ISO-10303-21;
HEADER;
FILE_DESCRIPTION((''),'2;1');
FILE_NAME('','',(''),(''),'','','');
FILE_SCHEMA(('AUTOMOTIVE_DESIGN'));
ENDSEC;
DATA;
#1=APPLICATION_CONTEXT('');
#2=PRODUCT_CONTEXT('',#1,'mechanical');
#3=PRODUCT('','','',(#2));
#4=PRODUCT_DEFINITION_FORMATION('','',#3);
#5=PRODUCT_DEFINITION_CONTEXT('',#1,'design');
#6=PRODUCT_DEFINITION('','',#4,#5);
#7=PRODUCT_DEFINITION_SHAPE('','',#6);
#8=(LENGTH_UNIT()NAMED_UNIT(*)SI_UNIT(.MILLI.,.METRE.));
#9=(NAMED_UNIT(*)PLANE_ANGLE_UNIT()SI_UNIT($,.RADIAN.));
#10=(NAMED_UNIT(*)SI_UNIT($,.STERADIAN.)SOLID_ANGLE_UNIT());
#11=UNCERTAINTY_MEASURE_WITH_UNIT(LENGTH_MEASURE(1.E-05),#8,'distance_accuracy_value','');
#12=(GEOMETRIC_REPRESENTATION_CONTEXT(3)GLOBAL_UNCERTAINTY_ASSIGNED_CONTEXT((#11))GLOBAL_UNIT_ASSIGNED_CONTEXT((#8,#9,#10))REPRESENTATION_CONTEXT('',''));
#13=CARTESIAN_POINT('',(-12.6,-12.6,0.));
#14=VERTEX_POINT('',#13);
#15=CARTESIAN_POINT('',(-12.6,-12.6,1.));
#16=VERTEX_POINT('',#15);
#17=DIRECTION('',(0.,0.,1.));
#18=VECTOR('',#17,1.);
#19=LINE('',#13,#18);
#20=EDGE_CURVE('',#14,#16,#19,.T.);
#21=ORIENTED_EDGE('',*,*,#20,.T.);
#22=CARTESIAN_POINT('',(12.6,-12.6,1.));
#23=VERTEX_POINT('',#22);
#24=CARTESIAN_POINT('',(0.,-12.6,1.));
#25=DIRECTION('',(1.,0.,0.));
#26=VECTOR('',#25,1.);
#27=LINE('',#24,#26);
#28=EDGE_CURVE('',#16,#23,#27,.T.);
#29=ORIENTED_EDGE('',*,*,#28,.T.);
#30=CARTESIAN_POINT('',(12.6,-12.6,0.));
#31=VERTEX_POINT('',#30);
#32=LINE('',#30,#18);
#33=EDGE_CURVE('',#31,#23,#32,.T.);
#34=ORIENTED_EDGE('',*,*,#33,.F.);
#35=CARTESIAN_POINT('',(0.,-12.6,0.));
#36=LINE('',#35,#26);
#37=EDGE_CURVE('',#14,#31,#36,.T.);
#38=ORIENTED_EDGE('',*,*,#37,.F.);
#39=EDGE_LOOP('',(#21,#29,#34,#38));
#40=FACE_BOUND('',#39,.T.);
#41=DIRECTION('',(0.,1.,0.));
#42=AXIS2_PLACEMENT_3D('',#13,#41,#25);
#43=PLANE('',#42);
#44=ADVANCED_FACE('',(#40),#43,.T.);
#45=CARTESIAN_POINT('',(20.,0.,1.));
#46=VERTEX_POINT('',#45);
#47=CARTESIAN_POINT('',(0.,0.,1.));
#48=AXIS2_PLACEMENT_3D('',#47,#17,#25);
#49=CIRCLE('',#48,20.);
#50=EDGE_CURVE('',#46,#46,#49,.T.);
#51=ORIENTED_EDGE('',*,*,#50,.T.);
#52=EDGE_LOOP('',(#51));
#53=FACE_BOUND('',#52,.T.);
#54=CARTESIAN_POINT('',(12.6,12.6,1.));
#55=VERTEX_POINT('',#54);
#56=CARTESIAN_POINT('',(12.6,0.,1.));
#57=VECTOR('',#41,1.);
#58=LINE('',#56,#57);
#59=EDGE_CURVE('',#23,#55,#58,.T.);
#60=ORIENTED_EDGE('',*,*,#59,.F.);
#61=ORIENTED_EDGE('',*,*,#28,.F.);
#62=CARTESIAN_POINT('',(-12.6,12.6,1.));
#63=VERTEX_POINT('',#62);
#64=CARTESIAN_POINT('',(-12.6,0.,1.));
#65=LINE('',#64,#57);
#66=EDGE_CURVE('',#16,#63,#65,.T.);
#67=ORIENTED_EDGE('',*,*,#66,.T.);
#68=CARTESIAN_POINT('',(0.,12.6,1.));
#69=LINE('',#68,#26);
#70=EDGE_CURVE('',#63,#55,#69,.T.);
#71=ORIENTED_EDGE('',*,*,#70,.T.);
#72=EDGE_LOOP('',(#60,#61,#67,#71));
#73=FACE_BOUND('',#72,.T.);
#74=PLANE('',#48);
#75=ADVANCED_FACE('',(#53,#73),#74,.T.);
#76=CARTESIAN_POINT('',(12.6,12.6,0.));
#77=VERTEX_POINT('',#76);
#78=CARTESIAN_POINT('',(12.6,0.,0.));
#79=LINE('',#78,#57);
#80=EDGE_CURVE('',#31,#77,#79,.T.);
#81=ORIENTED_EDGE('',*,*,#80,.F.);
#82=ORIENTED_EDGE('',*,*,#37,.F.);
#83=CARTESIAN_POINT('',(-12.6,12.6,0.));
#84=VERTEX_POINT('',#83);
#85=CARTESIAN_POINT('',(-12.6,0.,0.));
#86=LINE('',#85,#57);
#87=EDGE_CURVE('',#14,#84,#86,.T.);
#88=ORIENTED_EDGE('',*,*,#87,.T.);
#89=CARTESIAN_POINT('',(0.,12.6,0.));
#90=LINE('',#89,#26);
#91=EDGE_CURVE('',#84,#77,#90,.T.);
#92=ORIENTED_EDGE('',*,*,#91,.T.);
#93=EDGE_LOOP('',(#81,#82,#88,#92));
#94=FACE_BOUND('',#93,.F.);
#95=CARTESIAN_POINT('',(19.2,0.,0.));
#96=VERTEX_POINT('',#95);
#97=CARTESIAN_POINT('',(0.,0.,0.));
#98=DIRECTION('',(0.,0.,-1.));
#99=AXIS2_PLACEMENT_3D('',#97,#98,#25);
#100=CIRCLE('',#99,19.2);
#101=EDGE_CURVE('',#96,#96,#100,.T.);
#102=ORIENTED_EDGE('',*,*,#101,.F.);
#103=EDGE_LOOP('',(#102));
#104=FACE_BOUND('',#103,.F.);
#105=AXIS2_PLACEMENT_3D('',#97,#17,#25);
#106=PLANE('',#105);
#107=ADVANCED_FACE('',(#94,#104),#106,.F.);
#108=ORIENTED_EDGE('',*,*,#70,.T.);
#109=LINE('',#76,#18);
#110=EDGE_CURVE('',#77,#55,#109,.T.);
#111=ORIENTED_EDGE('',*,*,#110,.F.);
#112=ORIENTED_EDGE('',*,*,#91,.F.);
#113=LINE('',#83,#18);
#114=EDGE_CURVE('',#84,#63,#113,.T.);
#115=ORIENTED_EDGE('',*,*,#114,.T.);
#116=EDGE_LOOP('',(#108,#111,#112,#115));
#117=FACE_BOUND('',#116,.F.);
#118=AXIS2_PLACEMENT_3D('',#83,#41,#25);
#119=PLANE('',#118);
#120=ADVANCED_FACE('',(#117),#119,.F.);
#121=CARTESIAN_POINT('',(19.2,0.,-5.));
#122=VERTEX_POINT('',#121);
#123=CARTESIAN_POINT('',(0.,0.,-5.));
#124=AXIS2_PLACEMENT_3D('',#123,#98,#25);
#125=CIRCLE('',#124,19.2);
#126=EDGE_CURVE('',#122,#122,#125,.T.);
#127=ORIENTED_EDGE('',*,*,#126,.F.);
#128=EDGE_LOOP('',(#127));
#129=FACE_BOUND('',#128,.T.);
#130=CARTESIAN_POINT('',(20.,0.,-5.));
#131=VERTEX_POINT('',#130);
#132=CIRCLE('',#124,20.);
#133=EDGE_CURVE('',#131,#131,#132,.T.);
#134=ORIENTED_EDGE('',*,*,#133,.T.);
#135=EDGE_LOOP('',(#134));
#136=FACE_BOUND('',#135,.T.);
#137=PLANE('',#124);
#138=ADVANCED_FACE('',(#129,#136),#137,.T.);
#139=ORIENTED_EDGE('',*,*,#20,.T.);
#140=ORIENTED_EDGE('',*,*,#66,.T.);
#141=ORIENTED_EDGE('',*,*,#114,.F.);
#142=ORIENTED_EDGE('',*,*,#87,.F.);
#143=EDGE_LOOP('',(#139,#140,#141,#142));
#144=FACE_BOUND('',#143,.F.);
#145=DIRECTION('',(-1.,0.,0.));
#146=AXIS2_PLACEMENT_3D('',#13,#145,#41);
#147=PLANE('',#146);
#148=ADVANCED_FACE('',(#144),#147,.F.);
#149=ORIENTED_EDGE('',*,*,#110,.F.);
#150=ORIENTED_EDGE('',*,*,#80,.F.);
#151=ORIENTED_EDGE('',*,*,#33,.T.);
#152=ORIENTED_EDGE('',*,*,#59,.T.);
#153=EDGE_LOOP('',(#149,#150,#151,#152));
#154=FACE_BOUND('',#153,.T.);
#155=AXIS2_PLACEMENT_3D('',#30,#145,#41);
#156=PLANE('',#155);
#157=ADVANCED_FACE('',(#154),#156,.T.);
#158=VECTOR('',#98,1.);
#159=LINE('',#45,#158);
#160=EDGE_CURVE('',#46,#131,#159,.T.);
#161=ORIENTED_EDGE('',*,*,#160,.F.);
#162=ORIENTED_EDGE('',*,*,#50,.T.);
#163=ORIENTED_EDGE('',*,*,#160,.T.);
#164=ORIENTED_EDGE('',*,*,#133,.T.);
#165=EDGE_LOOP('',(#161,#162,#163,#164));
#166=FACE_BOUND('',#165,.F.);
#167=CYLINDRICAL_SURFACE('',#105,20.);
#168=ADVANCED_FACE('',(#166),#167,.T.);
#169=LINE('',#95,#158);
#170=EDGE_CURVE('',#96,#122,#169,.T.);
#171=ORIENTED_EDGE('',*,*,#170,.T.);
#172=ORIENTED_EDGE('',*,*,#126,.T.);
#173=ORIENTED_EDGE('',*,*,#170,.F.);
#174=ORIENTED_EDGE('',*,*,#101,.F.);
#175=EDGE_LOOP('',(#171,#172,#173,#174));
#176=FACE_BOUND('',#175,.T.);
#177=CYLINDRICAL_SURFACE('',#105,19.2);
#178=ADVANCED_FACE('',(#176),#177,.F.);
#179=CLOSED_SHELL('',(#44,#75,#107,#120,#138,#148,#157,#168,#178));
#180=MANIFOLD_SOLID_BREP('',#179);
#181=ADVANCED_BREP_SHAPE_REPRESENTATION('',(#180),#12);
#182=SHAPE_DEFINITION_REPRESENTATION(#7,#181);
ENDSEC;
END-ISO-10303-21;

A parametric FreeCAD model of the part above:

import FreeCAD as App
import Part
import Sketcher

doc = App.newDocument("Part")
body = doc.addObject("PartDesign::Body", "Body")

sketch1 = body.newObject("Sketcher::SketchObject", "Sketch")
sketch1.AttachmentSupport = (doc.getObject("XY_Plane"), [""])
sketch1.MapMode = "FlatFace"
sketch1.addGeometry([
    Part.Circle(App.Vector(0, 0, 0), App.Vector(0, 0, 1), 20),
    Part.LineSegment(App.Vector(12.6, -12.6, 0), App.Vector(-12.6, -12.6, 0)),
    Part.LineSegment(App.Vector(-12.6, -12.6, 0), App.Vector(-12.6, 12.6, 0)),
    Part.LineSegment(App.Vector(-12.6, 12.6, 0), App.Vector(12.6, 12.6, 0)),
    Part.LineSegment(App.Vector(12.6, 12.6, 0), App.Vector(12.6, -12.6, 0)),
], False)
sketch1.addConstraint([
    Sketcher.Constraint("Coincident", 1, 2, 2, 1),
    Sketcher.Constraint("Coincident", 2, 2, 3, 1),
    Sketcher.Constraint("Coincident", 3, 2, 4, 1),
    Sketcher.Constraint("Coincident", 4, 2, 1, 1),
    Sketcher.Constraint("Horizontal", 1),
    Sketcher.Constraint("Vertical", 2),
    Sketcher.Constraint("Horizontal", 3),
    Sketcher.Constraint("Vertical", 4),
    Sketcher.Constraint("Coincident", 0, 3, -1, 1),
    Sketcher.Constraint("Symmetric", 1, 2, 3, 2, -1, 1),
    Sketcher.Constraint("Equal", 3, 2),
    Sketcher.Constraint("Diameter", 0, 40.0),
    Sketcher.Constraint("DistanceX", 1, 2, 1, 1, 25.2),
])
pad1 = body.newObject("PartDesign::Pad", "Pad")
pad1.Profile = sketch1
pad1.Length = 1

sketch2 = body.newObject("Sketcher::SketchObject", "Sketch001")
sketch2.AttachmentSupport = (doc.getObject("XY_Plane"), [""])
sketch2.MapMode = "FlatFace"
sketch2.addGeometry([
    Part.Circle(App.Vector(0, 0, 0), App.Vector(0, 0, 1), 20),
    Part.Circle(App.Vector(0, 0, 0), App.Vector(0, 0, 1), 19.2),
], False)
sketch2.addConstraint([
    Sketcher.Constraint("Coincident", 0, 3, -1, 1),
    Sketcher.Constraint("Coincident", 1, 3, -1, 1),
    Sketcher.Constraint("Diameter", 0, 40.0),
    Sketcher.Constraint("Diameter", 1, 38.4),
])
pad2 = body.newObject("PartDesign::Pad", "Pad001")
pad2.Profile = sketch2
pad2.Length = 5
pad2.Reversed = True

doc.recompute()
